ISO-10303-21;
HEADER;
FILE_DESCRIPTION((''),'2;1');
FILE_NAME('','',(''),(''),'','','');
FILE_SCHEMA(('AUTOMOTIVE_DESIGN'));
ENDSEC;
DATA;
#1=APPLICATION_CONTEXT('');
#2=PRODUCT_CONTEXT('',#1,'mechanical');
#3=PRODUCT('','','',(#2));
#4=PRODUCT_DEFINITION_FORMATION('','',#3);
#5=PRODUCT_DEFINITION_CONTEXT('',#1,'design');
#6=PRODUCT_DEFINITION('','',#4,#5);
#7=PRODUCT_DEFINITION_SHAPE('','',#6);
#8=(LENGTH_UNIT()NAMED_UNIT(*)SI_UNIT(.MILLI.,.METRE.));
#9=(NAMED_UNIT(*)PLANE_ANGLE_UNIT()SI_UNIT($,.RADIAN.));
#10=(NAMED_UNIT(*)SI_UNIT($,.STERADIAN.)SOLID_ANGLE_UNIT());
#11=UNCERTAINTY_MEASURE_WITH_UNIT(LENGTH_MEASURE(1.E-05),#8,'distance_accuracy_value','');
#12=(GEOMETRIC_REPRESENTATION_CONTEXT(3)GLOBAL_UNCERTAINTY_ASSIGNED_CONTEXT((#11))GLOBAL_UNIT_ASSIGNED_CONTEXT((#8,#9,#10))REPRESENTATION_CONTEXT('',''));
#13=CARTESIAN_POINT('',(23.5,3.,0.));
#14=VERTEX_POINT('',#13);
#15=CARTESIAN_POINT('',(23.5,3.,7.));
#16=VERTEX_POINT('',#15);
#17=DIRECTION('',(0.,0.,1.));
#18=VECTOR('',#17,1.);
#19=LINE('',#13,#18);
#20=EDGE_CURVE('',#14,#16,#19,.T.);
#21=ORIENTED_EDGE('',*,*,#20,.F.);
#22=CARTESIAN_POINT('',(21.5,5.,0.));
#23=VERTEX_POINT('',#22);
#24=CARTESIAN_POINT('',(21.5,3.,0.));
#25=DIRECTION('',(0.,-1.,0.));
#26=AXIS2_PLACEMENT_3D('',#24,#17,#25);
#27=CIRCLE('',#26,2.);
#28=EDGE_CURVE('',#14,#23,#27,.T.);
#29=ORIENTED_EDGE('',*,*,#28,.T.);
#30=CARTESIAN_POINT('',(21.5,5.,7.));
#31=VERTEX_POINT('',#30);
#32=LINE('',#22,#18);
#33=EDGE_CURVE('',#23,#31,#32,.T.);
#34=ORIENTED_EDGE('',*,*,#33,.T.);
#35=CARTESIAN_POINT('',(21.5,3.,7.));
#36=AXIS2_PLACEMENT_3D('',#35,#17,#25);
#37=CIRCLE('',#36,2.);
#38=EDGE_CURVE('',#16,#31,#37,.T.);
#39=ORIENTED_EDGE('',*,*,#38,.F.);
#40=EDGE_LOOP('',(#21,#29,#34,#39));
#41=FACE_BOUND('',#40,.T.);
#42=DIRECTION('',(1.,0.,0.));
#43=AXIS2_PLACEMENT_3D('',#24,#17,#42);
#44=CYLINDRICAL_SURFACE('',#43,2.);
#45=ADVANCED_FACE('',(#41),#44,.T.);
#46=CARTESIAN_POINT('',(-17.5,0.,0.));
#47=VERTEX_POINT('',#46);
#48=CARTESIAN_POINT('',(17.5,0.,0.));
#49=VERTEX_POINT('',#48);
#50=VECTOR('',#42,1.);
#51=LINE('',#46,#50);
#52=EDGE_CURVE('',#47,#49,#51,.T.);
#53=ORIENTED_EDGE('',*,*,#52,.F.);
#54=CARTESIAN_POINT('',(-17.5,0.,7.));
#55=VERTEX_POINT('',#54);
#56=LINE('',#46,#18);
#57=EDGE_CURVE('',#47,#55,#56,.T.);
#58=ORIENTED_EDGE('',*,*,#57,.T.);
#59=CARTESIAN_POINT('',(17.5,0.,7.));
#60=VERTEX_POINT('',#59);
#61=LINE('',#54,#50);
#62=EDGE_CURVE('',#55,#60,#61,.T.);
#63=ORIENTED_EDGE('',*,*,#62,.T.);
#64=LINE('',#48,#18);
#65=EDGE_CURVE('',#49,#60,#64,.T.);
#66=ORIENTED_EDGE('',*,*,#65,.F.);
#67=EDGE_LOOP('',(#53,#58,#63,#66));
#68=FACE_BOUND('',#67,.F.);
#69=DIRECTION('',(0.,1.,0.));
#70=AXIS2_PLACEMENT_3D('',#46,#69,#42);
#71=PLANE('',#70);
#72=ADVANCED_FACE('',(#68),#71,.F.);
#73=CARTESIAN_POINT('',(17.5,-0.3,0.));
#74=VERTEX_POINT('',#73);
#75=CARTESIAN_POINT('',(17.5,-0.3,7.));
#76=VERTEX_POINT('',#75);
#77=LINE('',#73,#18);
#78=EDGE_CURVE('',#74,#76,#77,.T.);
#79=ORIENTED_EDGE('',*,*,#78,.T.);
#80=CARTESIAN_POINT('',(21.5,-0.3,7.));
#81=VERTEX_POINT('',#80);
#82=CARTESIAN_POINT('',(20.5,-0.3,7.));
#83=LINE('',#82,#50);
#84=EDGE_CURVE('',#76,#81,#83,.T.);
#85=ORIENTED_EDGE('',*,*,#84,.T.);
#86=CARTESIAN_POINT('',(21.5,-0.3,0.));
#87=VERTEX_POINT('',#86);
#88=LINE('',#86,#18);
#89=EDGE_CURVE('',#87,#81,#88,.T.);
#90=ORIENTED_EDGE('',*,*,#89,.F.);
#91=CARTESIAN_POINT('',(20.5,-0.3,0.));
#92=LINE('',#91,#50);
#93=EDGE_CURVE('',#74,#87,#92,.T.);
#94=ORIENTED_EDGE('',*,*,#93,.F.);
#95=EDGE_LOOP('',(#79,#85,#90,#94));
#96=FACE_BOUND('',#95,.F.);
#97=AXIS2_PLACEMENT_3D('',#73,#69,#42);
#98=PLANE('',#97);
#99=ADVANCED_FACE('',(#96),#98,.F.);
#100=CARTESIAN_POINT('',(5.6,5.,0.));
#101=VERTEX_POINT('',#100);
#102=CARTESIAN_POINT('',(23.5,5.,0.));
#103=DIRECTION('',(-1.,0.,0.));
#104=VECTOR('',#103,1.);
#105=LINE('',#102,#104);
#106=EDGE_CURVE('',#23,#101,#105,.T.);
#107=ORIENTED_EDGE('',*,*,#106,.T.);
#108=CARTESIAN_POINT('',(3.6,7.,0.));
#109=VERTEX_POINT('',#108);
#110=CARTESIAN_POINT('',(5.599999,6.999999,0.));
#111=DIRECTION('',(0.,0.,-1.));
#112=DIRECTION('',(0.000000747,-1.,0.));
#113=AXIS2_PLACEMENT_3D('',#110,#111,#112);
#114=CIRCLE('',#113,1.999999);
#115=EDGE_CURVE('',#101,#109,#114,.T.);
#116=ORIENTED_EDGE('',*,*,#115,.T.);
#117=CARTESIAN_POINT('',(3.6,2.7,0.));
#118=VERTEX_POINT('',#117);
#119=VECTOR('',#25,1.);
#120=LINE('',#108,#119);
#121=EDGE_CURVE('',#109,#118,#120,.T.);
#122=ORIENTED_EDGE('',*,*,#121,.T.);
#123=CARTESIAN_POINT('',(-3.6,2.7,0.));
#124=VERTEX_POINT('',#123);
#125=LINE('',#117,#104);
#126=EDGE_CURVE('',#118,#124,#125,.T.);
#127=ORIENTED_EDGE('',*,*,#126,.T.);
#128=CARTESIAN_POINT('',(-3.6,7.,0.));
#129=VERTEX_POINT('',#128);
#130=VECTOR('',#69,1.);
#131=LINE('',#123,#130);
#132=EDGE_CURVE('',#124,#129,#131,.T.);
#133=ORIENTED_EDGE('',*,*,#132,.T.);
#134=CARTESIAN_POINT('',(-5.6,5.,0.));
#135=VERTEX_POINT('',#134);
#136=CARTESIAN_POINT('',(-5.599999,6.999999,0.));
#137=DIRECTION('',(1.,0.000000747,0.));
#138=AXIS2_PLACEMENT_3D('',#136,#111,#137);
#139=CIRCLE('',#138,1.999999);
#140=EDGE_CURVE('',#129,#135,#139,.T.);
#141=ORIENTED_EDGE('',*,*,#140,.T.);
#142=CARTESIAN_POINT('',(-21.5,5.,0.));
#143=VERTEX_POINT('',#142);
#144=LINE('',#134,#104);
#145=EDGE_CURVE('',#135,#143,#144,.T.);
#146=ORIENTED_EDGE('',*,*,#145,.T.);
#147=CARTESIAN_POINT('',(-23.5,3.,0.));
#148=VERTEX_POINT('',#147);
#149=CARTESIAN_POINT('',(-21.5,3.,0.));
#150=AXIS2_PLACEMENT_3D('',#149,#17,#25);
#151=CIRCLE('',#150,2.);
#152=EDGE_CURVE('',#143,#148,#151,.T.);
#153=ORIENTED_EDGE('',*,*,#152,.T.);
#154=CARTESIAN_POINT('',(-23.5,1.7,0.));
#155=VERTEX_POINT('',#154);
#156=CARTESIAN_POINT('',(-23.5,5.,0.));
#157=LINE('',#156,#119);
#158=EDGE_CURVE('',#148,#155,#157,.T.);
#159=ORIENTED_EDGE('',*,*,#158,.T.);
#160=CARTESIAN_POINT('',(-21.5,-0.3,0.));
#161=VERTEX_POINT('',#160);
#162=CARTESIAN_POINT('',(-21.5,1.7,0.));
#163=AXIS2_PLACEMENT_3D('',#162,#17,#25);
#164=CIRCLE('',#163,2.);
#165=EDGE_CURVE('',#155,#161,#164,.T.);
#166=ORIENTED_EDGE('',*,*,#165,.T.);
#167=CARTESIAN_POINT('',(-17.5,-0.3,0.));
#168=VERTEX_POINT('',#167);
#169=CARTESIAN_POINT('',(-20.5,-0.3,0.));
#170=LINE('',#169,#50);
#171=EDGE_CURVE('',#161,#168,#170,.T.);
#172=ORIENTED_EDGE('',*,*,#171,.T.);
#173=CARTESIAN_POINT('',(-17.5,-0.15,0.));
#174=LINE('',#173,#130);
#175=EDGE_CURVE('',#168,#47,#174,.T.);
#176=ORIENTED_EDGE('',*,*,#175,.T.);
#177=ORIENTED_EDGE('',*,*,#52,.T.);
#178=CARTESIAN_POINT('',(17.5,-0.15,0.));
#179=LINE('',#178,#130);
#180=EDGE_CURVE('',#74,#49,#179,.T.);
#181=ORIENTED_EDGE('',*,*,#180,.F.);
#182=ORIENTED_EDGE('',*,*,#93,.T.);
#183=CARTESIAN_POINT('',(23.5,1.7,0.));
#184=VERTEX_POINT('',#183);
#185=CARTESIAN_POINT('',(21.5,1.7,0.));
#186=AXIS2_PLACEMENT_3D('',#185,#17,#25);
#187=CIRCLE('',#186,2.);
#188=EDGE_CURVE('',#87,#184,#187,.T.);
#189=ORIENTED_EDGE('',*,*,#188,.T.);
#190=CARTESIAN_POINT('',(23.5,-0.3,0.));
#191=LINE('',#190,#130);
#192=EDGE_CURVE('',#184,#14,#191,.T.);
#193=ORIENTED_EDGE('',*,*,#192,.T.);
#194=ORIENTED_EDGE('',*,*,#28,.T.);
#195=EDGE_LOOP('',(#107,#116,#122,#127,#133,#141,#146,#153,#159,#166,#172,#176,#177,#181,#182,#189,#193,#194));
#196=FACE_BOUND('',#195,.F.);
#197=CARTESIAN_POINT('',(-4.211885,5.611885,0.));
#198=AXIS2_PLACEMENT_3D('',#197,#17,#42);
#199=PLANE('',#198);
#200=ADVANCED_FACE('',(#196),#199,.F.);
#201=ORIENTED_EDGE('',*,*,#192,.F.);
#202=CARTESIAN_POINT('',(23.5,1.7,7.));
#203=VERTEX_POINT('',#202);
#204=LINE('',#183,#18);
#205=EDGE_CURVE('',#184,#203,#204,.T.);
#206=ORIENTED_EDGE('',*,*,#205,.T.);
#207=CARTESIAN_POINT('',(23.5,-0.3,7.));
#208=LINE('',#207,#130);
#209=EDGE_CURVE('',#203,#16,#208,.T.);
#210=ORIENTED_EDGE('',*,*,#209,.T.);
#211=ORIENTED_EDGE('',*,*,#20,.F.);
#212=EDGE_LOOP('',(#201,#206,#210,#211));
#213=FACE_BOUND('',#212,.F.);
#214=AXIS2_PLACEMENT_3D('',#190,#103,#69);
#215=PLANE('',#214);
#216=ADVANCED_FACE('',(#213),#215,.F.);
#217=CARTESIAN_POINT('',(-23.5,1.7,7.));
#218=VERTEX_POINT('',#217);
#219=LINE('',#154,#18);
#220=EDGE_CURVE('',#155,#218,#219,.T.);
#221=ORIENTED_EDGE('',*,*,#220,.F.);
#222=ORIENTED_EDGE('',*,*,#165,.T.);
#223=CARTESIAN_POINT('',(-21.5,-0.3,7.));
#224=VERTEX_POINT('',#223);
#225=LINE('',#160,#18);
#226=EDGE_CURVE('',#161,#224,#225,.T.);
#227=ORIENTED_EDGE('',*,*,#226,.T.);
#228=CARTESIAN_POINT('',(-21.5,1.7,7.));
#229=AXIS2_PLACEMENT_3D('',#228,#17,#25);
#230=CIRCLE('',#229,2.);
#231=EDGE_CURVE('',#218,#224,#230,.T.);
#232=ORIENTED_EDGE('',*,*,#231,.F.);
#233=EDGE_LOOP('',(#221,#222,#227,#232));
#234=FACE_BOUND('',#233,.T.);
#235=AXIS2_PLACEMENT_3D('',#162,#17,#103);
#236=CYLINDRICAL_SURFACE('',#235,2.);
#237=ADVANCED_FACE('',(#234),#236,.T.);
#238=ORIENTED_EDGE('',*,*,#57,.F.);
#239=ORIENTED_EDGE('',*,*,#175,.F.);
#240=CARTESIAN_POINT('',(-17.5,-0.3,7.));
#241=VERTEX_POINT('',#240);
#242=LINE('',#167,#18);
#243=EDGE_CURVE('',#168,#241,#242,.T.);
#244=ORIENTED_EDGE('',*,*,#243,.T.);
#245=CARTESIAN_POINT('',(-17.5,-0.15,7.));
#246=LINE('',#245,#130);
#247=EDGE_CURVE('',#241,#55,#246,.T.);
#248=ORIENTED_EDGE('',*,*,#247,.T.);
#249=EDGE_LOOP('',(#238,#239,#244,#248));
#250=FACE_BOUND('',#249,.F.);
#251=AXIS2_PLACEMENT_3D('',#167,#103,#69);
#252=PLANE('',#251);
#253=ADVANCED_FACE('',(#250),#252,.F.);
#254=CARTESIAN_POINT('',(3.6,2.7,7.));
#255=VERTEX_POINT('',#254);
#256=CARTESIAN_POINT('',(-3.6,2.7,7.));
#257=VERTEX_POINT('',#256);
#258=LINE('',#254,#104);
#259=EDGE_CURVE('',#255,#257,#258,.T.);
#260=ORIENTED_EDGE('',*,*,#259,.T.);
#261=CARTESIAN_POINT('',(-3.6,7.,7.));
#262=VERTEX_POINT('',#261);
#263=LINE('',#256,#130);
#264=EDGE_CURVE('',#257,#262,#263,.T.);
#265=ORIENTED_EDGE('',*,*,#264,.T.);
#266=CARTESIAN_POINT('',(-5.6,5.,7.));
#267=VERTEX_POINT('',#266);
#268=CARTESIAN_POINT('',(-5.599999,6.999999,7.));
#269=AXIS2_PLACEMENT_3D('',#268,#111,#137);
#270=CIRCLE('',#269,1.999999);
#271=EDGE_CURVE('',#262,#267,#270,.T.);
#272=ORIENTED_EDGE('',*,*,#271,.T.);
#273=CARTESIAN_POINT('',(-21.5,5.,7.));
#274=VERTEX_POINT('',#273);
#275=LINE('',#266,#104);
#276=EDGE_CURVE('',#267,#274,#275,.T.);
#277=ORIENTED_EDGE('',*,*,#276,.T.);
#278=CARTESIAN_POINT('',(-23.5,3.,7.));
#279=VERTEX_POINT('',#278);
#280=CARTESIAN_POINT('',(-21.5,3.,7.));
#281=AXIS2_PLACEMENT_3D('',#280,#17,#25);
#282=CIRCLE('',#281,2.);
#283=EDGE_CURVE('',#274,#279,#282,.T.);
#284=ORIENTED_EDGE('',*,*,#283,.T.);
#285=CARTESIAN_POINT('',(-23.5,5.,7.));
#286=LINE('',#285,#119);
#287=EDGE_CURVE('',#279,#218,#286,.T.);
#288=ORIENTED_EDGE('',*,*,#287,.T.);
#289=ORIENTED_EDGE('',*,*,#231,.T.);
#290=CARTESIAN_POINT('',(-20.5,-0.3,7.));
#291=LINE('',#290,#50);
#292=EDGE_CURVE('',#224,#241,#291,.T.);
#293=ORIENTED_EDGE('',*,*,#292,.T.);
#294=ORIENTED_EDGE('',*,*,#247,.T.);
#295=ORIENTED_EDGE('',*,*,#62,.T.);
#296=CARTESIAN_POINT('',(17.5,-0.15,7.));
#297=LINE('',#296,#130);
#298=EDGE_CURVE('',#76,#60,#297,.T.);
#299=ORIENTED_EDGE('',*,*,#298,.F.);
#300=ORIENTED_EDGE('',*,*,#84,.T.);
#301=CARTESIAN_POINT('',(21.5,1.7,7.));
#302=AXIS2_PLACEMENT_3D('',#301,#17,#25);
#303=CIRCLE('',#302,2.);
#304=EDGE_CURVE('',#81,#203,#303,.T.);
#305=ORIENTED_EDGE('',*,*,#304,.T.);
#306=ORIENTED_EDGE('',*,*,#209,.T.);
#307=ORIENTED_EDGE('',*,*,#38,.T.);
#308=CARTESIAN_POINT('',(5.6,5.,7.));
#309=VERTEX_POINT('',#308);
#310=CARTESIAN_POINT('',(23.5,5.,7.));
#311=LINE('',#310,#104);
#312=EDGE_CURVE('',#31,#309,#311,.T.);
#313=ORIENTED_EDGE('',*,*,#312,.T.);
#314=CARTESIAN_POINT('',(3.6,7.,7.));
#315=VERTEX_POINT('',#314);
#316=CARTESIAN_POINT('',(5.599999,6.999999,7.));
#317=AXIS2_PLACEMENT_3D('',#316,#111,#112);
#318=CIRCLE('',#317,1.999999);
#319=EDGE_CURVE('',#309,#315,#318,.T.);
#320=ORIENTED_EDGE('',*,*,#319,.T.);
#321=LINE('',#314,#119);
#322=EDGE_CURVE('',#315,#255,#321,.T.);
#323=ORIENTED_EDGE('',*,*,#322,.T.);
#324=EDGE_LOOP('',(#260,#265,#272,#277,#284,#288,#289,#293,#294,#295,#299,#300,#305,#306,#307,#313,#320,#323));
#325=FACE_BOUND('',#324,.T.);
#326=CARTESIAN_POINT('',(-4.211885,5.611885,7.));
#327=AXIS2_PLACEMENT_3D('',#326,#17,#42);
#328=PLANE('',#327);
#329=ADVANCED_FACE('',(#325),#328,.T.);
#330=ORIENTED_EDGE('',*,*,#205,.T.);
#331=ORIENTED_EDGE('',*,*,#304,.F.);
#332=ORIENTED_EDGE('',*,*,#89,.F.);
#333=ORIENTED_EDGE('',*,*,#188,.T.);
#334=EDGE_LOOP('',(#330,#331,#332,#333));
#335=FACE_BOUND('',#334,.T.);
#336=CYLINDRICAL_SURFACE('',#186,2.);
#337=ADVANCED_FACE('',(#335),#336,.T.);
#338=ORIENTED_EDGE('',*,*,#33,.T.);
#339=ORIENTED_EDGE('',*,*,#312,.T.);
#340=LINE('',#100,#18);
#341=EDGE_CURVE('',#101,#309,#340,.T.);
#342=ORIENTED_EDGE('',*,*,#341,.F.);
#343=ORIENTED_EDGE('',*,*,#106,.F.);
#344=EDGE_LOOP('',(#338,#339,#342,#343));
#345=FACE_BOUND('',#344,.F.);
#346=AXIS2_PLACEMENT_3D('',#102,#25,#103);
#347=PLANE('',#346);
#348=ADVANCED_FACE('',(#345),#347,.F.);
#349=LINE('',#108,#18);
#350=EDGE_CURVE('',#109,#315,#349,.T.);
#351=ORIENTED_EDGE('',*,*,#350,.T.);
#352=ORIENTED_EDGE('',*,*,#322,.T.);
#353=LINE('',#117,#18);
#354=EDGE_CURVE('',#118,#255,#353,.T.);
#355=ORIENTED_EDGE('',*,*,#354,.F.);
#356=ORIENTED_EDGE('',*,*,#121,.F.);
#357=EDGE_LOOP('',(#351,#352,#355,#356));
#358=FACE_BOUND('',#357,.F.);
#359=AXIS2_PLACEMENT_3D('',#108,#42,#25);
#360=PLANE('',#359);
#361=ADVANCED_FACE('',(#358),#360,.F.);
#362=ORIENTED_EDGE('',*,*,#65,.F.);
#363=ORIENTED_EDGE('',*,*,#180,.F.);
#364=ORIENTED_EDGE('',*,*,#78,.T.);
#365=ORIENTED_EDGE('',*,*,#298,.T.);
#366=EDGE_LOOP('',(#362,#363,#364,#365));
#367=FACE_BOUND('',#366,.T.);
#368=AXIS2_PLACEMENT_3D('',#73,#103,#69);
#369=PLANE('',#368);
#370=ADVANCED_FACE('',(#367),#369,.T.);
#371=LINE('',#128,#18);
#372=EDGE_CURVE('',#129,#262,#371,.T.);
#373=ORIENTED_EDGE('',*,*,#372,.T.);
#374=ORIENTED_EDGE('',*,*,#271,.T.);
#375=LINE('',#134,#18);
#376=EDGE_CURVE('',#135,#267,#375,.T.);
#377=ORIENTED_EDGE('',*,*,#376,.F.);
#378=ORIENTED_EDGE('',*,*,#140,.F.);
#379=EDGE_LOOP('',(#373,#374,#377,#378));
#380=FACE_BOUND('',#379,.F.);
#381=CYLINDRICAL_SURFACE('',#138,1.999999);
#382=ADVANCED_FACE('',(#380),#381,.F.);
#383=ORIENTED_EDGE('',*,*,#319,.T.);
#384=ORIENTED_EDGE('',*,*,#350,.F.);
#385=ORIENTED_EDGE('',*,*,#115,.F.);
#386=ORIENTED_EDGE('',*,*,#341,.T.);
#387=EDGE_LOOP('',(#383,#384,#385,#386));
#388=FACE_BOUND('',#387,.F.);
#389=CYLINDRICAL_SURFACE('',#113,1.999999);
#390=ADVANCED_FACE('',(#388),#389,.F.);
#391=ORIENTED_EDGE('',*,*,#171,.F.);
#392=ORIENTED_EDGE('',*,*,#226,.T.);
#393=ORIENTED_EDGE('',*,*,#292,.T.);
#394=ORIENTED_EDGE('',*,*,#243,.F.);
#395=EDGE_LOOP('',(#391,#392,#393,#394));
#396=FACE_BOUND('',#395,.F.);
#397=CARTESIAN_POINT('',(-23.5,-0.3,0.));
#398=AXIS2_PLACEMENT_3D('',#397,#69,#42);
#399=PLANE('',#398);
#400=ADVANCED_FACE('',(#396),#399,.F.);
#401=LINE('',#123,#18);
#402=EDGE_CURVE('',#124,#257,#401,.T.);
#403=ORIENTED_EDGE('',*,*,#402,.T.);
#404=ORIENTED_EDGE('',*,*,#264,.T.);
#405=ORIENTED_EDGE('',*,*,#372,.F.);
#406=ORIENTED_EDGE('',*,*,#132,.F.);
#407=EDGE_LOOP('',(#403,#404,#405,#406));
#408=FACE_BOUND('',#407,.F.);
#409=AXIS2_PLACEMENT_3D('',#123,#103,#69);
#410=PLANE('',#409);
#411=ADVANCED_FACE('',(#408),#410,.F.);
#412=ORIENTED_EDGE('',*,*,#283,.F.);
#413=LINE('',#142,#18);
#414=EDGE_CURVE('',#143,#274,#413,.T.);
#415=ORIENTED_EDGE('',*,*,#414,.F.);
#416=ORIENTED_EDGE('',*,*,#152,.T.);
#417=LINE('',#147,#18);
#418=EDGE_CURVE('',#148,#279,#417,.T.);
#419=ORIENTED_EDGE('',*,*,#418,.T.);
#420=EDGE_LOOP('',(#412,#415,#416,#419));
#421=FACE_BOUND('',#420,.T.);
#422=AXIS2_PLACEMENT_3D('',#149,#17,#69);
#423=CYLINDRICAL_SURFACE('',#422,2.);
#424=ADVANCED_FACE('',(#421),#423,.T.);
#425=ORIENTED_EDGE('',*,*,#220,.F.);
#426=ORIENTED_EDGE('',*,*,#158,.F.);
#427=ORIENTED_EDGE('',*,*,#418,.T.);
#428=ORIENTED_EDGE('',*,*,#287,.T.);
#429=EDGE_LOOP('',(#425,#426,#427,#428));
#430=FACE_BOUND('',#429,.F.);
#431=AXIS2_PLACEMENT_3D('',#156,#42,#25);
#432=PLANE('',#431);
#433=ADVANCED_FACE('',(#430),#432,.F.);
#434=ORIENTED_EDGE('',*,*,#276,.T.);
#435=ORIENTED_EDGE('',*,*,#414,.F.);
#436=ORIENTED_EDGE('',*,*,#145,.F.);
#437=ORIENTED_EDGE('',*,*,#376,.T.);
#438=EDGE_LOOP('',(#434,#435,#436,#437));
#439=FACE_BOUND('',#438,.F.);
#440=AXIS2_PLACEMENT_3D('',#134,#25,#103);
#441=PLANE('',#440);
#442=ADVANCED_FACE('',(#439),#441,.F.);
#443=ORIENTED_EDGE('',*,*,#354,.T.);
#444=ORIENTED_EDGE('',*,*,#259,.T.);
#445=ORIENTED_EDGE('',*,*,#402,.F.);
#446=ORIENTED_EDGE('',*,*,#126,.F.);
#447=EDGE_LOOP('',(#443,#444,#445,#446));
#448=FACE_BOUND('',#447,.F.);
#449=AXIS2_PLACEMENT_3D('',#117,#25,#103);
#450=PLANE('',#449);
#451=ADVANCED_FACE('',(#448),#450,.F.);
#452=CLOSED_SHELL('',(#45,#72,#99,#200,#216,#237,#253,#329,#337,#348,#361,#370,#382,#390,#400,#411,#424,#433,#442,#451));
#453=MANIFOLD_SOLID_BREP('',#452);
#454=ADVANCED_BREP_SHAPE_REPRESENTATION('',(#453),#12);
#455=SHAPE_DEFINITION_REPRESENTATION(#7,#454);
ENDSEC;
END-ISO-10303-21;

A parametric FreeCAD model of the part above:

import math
import FreeCAD as App
import Part
import Sketcher
Q = App.Units.Quantity


def edges_at(feature, points):
    """Names of the edges that pass closest to the given points."""
    edges = feature.Shape.Edges
    near = lambda p: min(range(len(edges)), key=lambda i: edges[i].distToShape(Part.Vertex(*p))[0])
    return sorted({f"Edge{near(p) + 1}" for p in points})

doc = App.newDocument("Part")
body = doc.addObject("PartDesign::Body", "Body")

# Sketch on XY plane
sketch1 = body.newObject("Sketcher::SketchObject", "Sketch")
sketch1.AttachmentSupport = (doc.getObject("XY_Plane"), [""])
sketch1.MapMode = "FlatFace"
sketch1.addGeometry([
    Part.ArcOfCircle(Part.Circle(App.Vector(-5.6, 7, 0), App.Vector(0, 0, 1), 2), math.radians(-90), math.radians(0)),  # 0
    Part.LineSegment(App.Vector(-5.6, 5, 0), App.Vector(-23.5, 5, 0)),  # 1
    Part.LineSegment(App.Vector(-23.5, 5, 0), App.Vector(-23.5, -0.3, 0)),  # 2
    Part.LineSegment(App.Vector(-23.5, -0.3, 0), App.Vector(-17.5, -0.3, 0)),  # 3
    Part.LineSegment(App.Vector(-17.5, -0.3, 0), App.Vector(-17.5, 0, 0)),  # 4
    Part.LineSegment(App.Vector(-17.5, 0, 0), App.Vector(17.5, 0, 0)),  # 5
    Part.LineSegment(App.Vector(17.5, 0, 0), App.Vector(17.5, -0.3, 0)),  # 6
    Part.LineSegment(App.Vector(17.5, -0.3, 0), App.Vector(23.5, -0.3, 0)),  # 7
    Part.LineSegment(App.Vector(23.5, -0.3, 0), App.Vector(23.5, 5, 0)),  # 8
    Part.LineSegment(App.Vector(23.5, 5, 0), App.Vector(5.6, 5, 0)),  # 9
    Part.ArcOfCircle(Part.Circle(App.Vector(5.6, 7, 0), App.Vector(0, 0, 1), 2), math.radians(180), math.radians(270)),  # 10
    Part.LineSegment(App.Vector(3.6, 7, 0), App.Vector(3.6, 2.7, 0)),  # 11
    Part.LineSegment(App.Vector(3.6, 2.7, 0), App.Vector(-3.6, 2.7, 0)),  # 12
    Part.LineSegment(App.Vector(-3.6, 2.7, 0), App.Vector(-3.6, 7, 0)),  # 13
], False)
sketch1.addConstraint([
    Sketcher.Constraint("Tangent", 0, 1, 1, 1),
    Sketcher.Constraint("Coincident", 1, 2, 2, 1),
    Sketcher.Constraint("Coincident", 2, 2, 3, 1),
    Sketcher.Constraint("Coincident", 3, 2, 4, 1),
    Sketcher.Constraint("Coincident", 4, 2, 5, 1),
    Sketcher.Constraint("Coincident", 5, 2, 6, 1),
    Sketcher.Constraint("Coincident", 6, 2, 7, 1),
    Sketcher.Constraint("Coincident", 7, 2, 8, 1),
    Sketcher.Constraint("Coincident", 8, 2, 9, 1),
    Sketcher.Constraint("Tangent", 9, 2, 10, 2),
    Sketcher.Constraint("Tangent", 10, 1, 11, 1),
    Sketcher.Constraint("Coincident", 11, 2, 12, 1),
    Sketcher.Constraint("Coincident", 12, 2, 13, 1),
    Sketcher.Constraint("Tangent", 13, 2, 0, 2),
    Sketcher.Constraint("Horizontal", 1),
    Sketcher.Constraint("Vertical", 2),
    Sketcher.Constraint("Horizontal", 3),
    Sketcher.Constraint("Vertical", 4),
    Sketcher.Constraint("Horizontal", 5),
    Sketcher.Constraint("Vertical", 6),
    Sketcher.Constraint("Horizontal", 7),
    Sketcher.Constraint("Vertical", 8),
    Sketcher.Constraint("Horizontal", 9),
    Sketcher.Constraint("Vertical", 11),
    Sketcher.Constraint("Horizontal", 12),
    Sketcher.Constraint("Vertical", 13),
    Sketcher.Constraint("Equal", 0, 10),
    Sketcher.Constraint("Symmetric", 4, 2, 5, 2, -1, 1),
    Sketcher.Constraint("Symmetric", 0, 3, 10, 3, -2),
    Sketcher.Constraint("Symmetric", 2, 2, 7, 2, -2),
    Sketcher.Constraint("Radius", 0, Q("1.999999 mm")),
    Sketcher.Constraint("DistanceX", 3, 1, 3, 2, Q("6 mm")),
    Sketcher.Constraint("DistanceX", 5, 1, 5, 2, Q("35 mm")),
    Sketcher.Constraint("DistanceX", 1, 2, 1, 1, Q("17.9 mm")),
    Sketcher.Constraint("DistanceY", 2, 2, 2, 1, Q("5.3 mm")),
    Sketcher.Constraint("DistanceY", 4, 1, 4, 2, Q("0.3 mm")),
    Sketcher.Constraint("DistanceY", 11, 2, 11, 1, Q("4.3 mm")),
])
pad1 = body.newObject("PartDesign::Pad", "Pad")
pad1.Profile = sketch1
pad1.Length = 7
doc.recompute()

fillet = body.newObject("PartDesign::Fillet", "Fillet")
fillet.Base = (pad1, edges_at(pad1, [
    (-23.5, 5, 3.5),
    (23.5, 5, 3.5),
    (-23.5, -0.3, 3.5),
    (23.5, -0.3, 3.5),
]))
fillet.Radius = 2

doc.recompute()
